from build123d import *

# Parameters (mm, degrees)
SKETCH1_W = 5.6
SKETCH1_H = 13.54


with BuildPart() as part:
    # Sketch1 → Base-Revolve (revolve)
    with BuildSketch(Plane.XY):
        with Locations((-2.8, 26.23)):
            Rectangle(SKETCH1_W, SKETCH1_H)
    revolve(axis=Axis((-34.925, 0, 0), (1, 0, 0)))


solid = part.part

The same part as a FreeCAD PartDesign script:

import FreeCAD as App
import Part
import Sketcher

V = App.Vector

doc = App.newDocument("Part")
body = doc.addObject("PartDesign::Body", "Body")

# Sketch on XY plane
sketch1 = body.newObject("Sketcher::SketchObject", "Sketch")
sketch1.AttachmentSupport = (doc.getObject("XY_Plane"), [""])
sketch1.MapMode = "FlatFace"
sketch1.addGeometry(Part.LineSegment(V(-6, 33, 0), V(-6, 19, 0)), False)
sketch1.addGeometry(Part.LineSegment(V(-6, 19, 0), V(0, 19, 0)), False)
sketch1.addGeometry(Part.LineSegment(V(0, 19, 0), V(0, 33, 0)), False)
sketch1.addGeometry(Part.LineSegment(V(0, 33, 0), V(-6, 33, 0)), False)
sketch1.addConstraint(Sketcher.Constraint("Coincident", 0, 2, 1, 1))
sketch1.addConstraint(Sketcher.Constraint("Coincident", 1, 2, 2, 1))
sketch1.addConstraint(Sketcher.Constraint("Coincident", 2, 2, 3, 1))
sketch1.addConstraint(Sketcher.Constraint("Coincident", 3, 2, 0, 1))
sketch1.addConstraint(Sketcher.Constraint("Vertical", 0))
sketch1.addConstraint(Sketcher.Constraint("Horizontal", 1))
sketch1.addConstraint(Sketcher.Constraint("Vertical", 2))
sketch1.addConstraint(Sketcher.Constraint("Horizontal", 3))
sketch1.addConstraint(Sketcher.Constraint("PointOnObject", 1, 2, -2))
sketch1.addConstraint(Sketcher.Constraint("DistanceX", 1, 1, 1, 2, 5.6))
sketch1.addConstraint(Sketcher.Constraint("DistanceY", -1, 1, 2, 2, 33.0))
sketch1.addConstraint(Sketcher.Constraint("DistanceY", 0, 2, 0, 1, 13.54))
revolution = body.newObject("PartDesign::Revolution", "Revolution")
revolution.Profile = sketch1
revolution.ReferenceAxis = (sketch1, ["H_Axis"])
revolution.Angle = 360

doc.recompute()
